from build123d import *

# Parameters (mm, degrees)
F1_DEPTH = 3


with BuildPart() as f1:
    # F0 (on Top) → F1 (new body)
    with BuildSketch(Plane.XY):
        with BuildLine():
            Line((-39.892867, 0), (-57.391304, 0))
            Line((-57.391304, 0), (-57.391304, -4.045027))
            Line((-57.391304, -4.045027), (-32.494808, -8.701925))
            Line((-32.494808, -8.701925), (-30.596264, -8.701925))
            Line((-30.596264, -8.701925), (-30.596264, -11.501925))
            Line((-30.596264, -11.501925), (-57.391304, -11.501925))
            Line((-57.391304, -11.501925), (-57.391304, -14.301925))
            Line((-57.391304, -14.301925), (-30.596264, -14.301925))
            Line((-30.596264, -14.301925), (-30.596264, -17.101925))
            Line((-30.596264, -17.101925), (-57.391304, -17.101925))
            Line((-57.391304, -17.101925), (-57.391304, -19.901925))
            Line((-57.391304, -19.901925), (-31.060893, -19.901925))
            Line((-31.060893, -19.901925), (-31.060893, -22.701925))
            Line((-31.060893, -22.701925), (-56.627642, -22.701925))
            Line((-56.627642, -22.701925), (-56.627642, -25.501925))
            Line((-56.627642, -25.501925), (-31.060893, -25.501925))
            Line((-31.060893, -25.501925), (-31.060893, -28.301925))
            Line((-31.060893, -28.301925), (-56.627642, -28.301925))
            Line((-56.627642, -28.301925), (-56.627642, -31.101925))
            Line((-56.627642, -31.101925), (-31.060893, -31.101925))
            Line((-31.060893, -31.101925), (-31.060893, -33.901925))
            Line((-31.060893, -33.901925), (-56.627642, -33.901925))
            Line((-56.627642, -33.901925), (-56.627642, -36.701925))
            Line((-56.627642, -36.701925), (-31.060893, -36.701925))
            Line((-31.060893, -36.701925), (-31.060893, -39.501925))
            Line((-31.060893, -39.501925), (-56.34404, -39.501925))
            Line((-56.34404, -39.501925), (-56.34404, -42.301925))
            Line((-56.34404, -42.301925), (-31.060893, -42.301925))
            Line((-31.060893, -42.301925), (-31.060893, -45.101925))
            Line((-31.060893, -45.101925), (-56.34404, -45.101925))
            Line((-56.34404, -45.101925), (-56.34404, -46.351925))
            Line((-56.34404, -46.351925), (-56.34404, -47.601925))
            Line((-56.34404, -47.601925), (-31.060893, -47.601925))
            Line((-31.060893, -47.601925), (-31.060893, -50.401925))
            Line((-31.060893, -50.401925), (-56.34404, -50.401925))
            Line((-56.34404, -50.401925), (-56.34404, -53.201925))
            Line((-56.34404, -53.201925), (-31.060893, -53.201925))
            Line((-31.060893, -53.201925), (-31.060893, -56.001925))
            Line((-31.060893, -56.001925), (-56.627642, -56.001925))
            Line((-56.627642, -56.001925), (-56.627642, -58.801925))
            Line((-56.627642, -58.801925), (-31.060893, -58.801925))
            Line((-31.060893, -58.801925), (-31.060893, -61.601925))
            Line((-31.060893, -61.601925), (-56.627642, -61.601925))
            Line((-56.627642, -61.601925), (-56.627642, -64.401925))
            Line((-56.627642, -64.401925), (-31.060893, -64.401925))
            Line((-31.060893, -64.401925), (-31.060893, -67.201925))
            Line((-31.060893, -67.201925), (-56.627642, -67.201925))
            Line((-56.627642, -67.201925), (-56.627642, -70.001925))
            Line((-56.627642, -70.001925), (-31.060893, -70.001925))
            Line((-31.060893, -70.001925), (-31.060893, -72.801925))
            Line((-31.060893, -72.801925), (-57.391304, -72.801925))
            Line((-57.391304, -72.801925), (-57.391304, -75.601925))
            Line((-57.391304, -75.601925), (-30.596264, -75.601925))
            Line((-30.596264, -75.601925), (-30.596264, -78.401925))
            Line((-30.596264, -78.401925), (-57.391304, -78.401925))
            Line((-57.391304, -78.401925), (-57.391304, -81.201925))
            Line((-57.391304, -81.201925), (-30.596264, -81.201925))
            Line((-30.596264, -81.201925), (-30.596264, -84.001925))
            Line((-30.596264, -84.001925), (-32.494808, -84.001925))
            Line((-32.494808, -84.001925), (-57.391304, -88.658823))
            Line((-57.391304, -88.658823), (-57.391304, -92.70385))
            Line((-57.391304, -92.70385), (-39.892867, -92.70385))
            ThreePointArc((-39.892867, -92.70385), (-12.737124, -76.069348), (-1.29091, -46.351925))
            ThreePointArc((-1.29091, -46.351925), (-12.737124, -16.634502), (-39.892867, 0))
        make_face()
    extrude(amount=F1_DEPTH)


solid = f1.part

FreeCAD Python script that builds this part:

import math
import FreeCAD as App
import Part
import Sketcher
from FreeCAD import Vector

doc = App.newDocument("Part")
body = doc.addObject("PartDesign::Body", "Body")

# Sketch on XY plane
sketch1 = body.newObject("Sketcher::SketchObject", "Sketch")
sketch1.AttachmentSupport = (doc.getObject("XY_Plane"), [""])
sketch1.MapMode = "FlatFace"
sketch1.addGeometry([
    Part.LineSegment(Vector(-39.892867, 0, 0), Vector(-57.391304, 0, 0)),  # 0
    Part.LineSegment(Vector(-57.391304, 0, 0), Vector(-57.391304, -4.045027, 0)),  # 1
    Part.LineSegment(Vector(-57.391304, -4.045027, 0), Vector(-32.494808, -8.701925, 0)),  # 2
    Part.LineSegment(Vector(-32.494808, -8.701925, 0), Vector(-30.596264, -8.701925, 0)),  # 3
    Part.LineSegment(Vector(-30.596264, -8.701925, 0), Vector(-30.596264, -11.501925, 0)),  # 4
    Part.LineSegment(Vector(-30.596264, -11.501925, 0), Vector(-57.391304, -11.501925, 0)),  # 5
    Part.LineSegment(Vector(-57.391304, -11.501925, 0), Vector(-57.391304, -14.301925, 0)),  # 6
    Part.LineSegment(Vector(-57.391304, -14.301925, 0), Vector(-30.596264, -14.301925, 0)),  # 7
    Part.LineSegment(Vector(-30.596264, -14.301925, 0), Vector(-30.596264, -17.101925, 0)),  # 8
    Part.LineSegment(Vector(-30.596264, -17.101925, 0), Vector(-57.391304, -17.101925, 0)),  # 9
    Part.LineSegment(Vector(-57.391304, -17.101925, 0), Vector(-57.391304, -19.901925, 0)),  # 10
    Part.LineSegment(Vector(-57.391304, -19.901925, 0), Vector(-31.060893, -19.901925, 0)),  # 11
    Part.LineSegment(Vector(-31.060893, -19.901925, 0), Vector(-31.060893, -22.701925, 0)),  # 12
    Part.LineSegment(Vector(-31.060893, -22.701925, 0), Vector(-56.627642, -22.701925, 0)),  # 13
    Part.LineSegment(Vector(-56.627642, -22.701925, 0), Vector(-56.627642, -25.501925, 0)),  # 14
    Part.LineSegment(Vector(-56.627642, -25.501925, 0), Vector(-31.060893, -25.501925, 0)),  # 15
    Part.LineSegment(Vector(-31.060893, -25.501925, 0), Vector(-31.060893, -28.301925, 0)),  # 16
    Part.LineSegment(Vector(-31.060893, -28.301925, 0), Vector(-56.627642, -28.301925, 0)),  # 17
    Part.LineSegment(Vector(-56.627642, -28.301925, 0), Vector(-56.627642, -31.101925, 0)),  # 18
    Part.LineSegment(Vector(-56.627642, -31.101925, 0), Vector(-31.060893, -31.101925, 0)),  # 19
    Part.LineSegment(Vector(-31.060893, -31.101925, 0), Vector(-31.060893, -33.901925, 0)),  # 20
    Part.LineSegment(Vector(-31.060893, -33.901925, 0), Vector(-56.627642, -33.901925, 0)),  # 21
    Part.LineSegment(Vector(-56.627642, -33.901925, 0), Vector(-56.627642, -36.701925, 0)),  # 22
    Part.LineSegment(Vector(-56.627642, -36.701925, 0), Vector(-31.060893, -36.701925, 0)),  # 23
    Part.LineSegment(Vector(-31.060893, -36.701925, 0), Vector(-31.060893, -39.501925, 0)),  # 24
    Part.LineSegment(Vector(-31.060893, -39.501925, 0), Vector(-56.34404, -39.501925, 0)),  # 25
    Part.LineSegment(Vector(-56.34404, -39.501925, 0), Vector(-56.34404, -42.301925, 0)),  # 26
    Part.LineSegment(Vector(-56.34404, -42.301925, 0), Vector(-31.060893, -42.301925, 0)),  # 27
    Part.LineSegment(Vector(-31.060893, -42.301925, 0), Vector(-31.060893, -45.101925, 0)),  # 28
    Part.LineSegment(Vector(-31.060893, -45.101925, 0), Vector(-56.34404, -45.101925, 0)),  # 29
    Part.LineSegment(Vector(-56.34404, -45.101925, 0), Vector(-56.34404, -47.601925, 0)),  # 30
    Part.LineSegment(Vector(-56.34404, -47.601925, 0), Vector(-31.060893, -47.601925, 0)),  # 31
    Part.LineSegment(Vector(-31.060893, -47.601925, 0), Vector(-31.060893, -50.401925, 0)),  # 32
    Part.LineSegment(Vector(-31.060893, -50.401925, 0), Vector(-56.34404, -50.401925, 0)),  # 33
    Part.LineSegment(Vector(-56.34404, -50.401925, 0), Vector(-56.34404, -53.201925, 0)),  # 34
    Part.LineSegment(Vector(-56.34404, -53.201925, 0), Vector(-31.060893, -53.201925, 0)),  # 35
    Part.LineSegment(Vector(-31.060893, -53.201925, 0), Vector(-31.060893, -56.001925, 0)),  # 36
    Part.LineSegment(Vector(-31.060893, -56.001925, 0), Vector(-56.627642, -56.001925, 0)),  # 37
    Part.LineSegment(Vector(-56.627642, -56.001925, 0), Vector(-56.627642, -58.801925, 0)),  # 38
    Part.LineSegment(Vector(-56.627642, -58.801925, 0), Vector(-31.060893, -58.801925, 0)),  # 39
    Part.LineSegment(Vector(-31.060893, -58.801925, 0), Vector(-31.060893, -61.601925, 0)),  # 40
    Part.LineSegment(Vector(-31.060893, -61.601925, 0), Vector(-56.627642, -61.601925, 0)),  # 41
    Part.LineSegment(Vector(-56.627642, -61.601925, 0), Vector(-56.627642, -64.401925, 0)),  # 42
    Part.LineSegment(Vector(-56.627642, -64.401925, 0), Vector(-31.060893, -64.401925, 0)),  # 43
    Part.LineSegment(Vector(-31.060893, -64.401925, 0), Vector(-31.060893, -67.201925, 0)),  # 44
    Part.LineSegment(Vector(-31.060893, -67.201925, 0), Vector(-56.627642, -67.201925, 0)),  # 45
    Part.LineSegment(Vector(-56.627642, -67.201925, 0), Vector(-56.627642, -70.001925, 0)),  # 46
    Part.LineSegment(Vector(-56.627642, -70.001925, 0), Vector(-31.060893, -70.001925, 0)),  # 47
    Part.LineSegment(Vector(-31.060893, -70.001925, 0), Vector(-31.060893, -72.801925, 0)),  # 48
    Part.LineSegment(Vector(-31.060893, -72.801925, 0), Vector(-57.391304, -72.801925, 0)),  # 49
    Part.LineSegment(Vector(-57.391304, -72.801925, 0), Vector(-57.391304, -75.601925, 0)),  # 50
    Part.LineSegment(Vector(-57.391304, -75.601925, 0), Vector(-30.596264, -75.601925, 0)),  # 51
    Part.LineSegment(Vector(-30.596264, -75.601925, 0), Vector(-30.596264, -78.401925, 0)),  # 52
    Part.LineSegment(Vector(-30.596264, -78.401925, 0), Vector(-57.391304, -78.401925, 0)),  # 53
    Part.LineSegment(Vector(-57.391304, -78.401925, 0), Vector(-57.391304, -81.201925, 0)),  # 54
    Part.LineSegment(Vector(-57.391304, -81.201925, 0), Vector(-30.596264, -81.201925, 0)),  # 55
    Part.LineSegment(Vector(-30.596264, -81.201925, 0), Vector(-30.596264, -84.001925, 0)),  # 56
    Part.LineSegment(Vector(-30.596264, -84.001925, 0), Vector(-32.494808, -84.001925, 0)),  # 57
    Part.LineSegment(Vector(-32.494808, -84.001925, 0), Vector(-57.391304, -88.658823, 0)),  # 58
    Part.LineSegment(Vector(-57.391304, -88.658823, 0), Vector(-57.391304, -92.70385, 0)),  # 59
    Part.LineSegment(Vector(-57.391304, -92.70385, 0), Vector(-39.892867, -92.70385, 0)),  # 60
    Part.ArcOfCircle(Part.Circle(Vector(-50.855553, -44.32426, 0), Vector(0, 0, 1), 49.606101), math.radians(-77.232536), math.radians(-2.342636)),  # 61
    Part.ArcOfCircle(Part.Circle(Vector(-50.855553, -48.37959, 0), Vector(0, 0, 1), 49.606101), math.radians(2.342636), math.radians(77.232536)),  # 62
], False)
sketch1.addConstraint([
    Sketcher.Constraint("Coincident", 0, 2, 1, 1),
    Sketcher.Constraint("Coincident", 1, 2, 2, 1),
    Sketcher.Constraint("Coincident", 2, 2, 3, 1),
    Sketcher.Constraint("Coincident", 3, 2, 4, 1),
    Sketcher.Constraint("Coincident", 4, 2, 5, 1),
    Sketcher.Constraint("Coincident", 5, 2, 6, 1),
    Sketcher.Constraint("Coincident", 6, 2, 7, 1),
    Sketcher.Constraint("Coincident", 7, 2, 8, 1),
    Sketcher.Constraint("Coincident", 8, 2, 9, 1),
    Sketcher.Constraint("Coincident", 9, 2, 10, 1),
    Sketcher.Constraint("Coincident", 10, 2, 11, 1),
    Sketcher.Constraint("Coincident", 11, 2, 12, 1),
    Sketcher.Constraint("Coincident", 12, 2, 13, 1),
    Sketcher.Constraint("Coincident", 13, 2, 14, 1),
    Sketcher.Constraint("Coincident", 14, 2, 15, 1),
    Sketcher.Constraint("Coincident", 15, 2, 16, 1),
    Sketcher.Constraint("Coincident", 16, 2, 17, 1),
    Sketcher.Constraint("Coincident", 17, 2, 18, 1),
    Sketcher.Constraint("Coincident", 18, 2, 19, 1),
    Sketcher.Constraint("Coincident", 19, 2, 20, 1),
    Sketcher.Constraint("Coincident", 20, 2, 21, 1),
    Sketcher.Constraint("Coincident", 21, 2, 22, 1),
    Sketcher.Constraint("Coincident", 22, 2, 23, 1),
    Sketcher.Constraint("Coincident", 23, 2, 24, 1),
    Sketcher.Constraint("Coincident", 24, 2, 25, 1),
    Sketcher.Constraint("Coincident", 25, 2, 26, 1),
    Sketcher.Constraint("Coincident", 26, 2, 27, 1),
    Sketcher.Constraint("Coincident", 27, 2, 28, 1),
    Sketcher.Constraint("Coincident", 28, 2, 29, 1),
    Sketcher.Constraint("Coincident", 29, 2, 30, 1),
    Sketcher.Constraint("Coincident", 30, 2, 31, 1),
    Sketcher.Constraint("Coincident", 31, 2, 32, 1),
    Sketcher.Constraint("Coincident", 32, 2, 33, 1),
    Sketcher.Constraint("Coincident", 33, 2, 34, 1),
    Sketcher.Constraint("Coincident", 34, 2, 35, 1),
    Sketcher.Constraint("Coincident", 35, 2, 36, 1),
    Sketcher.Constraint("Coincident", 36, 2, 37, 1),
    Sketcher.Constraint("Coincident", 37, 2, 38, 1),
    Sketcher.Constraint("Coincident", 38, 2, 39, 1),
    Sketcher.Constraint("Coincident", 39, 2, 40, 1),
    Sketcher.Constraint("Coincident", 40, 2, 41, 1),
    Sketcher.Constraint("Coincident", 41, 2, 42, 1),
    Sketcher.Constraint("Coincident", 42, 2, 43, 1),
    Sketcher.Constraint("Coincident", 43, 2, 44, 1),
    Sketcher.Constraint("Coincident", 44, 2, 45, 1),
    Sketcher.Constraint("Coincident", 45, 2, 46, 1),
    Sketcher.Constraint("Coincident", 46, 2, 47, 1),
    Sketcher.Constraint("Coincident", 47, 2, 48, 1),
    Sketcher.Constraint("Coincident", 48, 2, 49, 1),
    Sketcher.Constraint("Coincident", 49, 2, 50, 1),
    Sketcher.Constraint("Coincident", 50, 2, 51, 1),
    Sketcher.Constraint("Coincident", 51, 2, 52, 1),
    Sketcher.Constraint("Coincident", 52, 2, 53, 1),
    Sketcher.Constraint("Coincident", 53, 2, 54, 1),
    Sketcher.Constraint("Coincident", 54, 2, 55, 1),
    Sketcher.Constraint("Coincident", 55, 2, 56, 1),
    Sketcher.Constraint("Coincident", 56, 2, 57, 1),
    Sketcher.Constraint("Coincident", 57, 2, 58, 1),
    Sketcher.Constraint("Coincident", 58, 2, 59, 1),
    Sketcher.Constraint("Coincident", 59, 2, 60, 1),
    Sketcher.Constraint("Coincident", 60, 2, 61, 1),
    Sketcher.Constraint("Coincident", 61, 2, 62, 1),
    Sketcher.Constraint("Coincident", 62, 2, 0, 1),
    Sketcher.Constraint("Horizontal", 0),
    Sketcher.Constraint("Vertical", 1),
    Sketcher.Constraint("Horizontal", 3),
    Sketcher.Constraint("Vertical", 4),
    Sketcher.Constraint("Horizontal", 5),
    Sketcher.Constraint("Vertical", 6),
    Sketcher.Constraint("Horizontal", 7),
    Sketcher.Constraint("Vertical", 8),
    Sketcher.Constraint("Horizontal", 9),
    Sketcher.Constraint("Vertical", 10),
    Sketcher.Constraint("Horizontal", 11),
    Sketcher.Constraint("Vertical", 12),
    Sketcher.Constraint("Horizontal", 13),
    Sketcher.Constraint("Vertical", 14),
    Sketcher.Constraint("Horizontal", 15),
    Sketcher.Constraint("Vertical", 16),
    Sketcher.Constraint("Horizontal", 17),
    Sketcher.Constraint("Vertical", 18),
    Sketcher.Constraint("Horizontal", 19),
    Sketcher.Constraint("Vertical", 20),
    Sketcher.Constraint("Horizontal", 21),
    Sketcher.Constraint("Vertical", 22),
    Sketcher.Constraint("Horizontal", 23),
    Sketcher.Constraint("Vertical", 24),
    Sketcher.Constraint("Horizontal", 25),
    Sketcher.Constraint("Vertical", 26),
    Sketcher.Constraint("Horizontal", 27),
    Sketcher.Constraint("Vertical", 28),
    Sketcher.Constraint("Horizontal", 29),
    Sketcher.Constraint("Vertical", 30),
    Sketcher.Constraint("Horizontal", 31),
    Sketcher.Constraint("Vertical", 32),
    Sketcher.Constraint("Horizontal", 33),
    Sketcher.Constraint("Vertical", 34),
    Sketcher.Constraint("Horizontal", 35),
    Sketcher.Constraint("Vertical", 36),
    Sketcher.Constraint("Horizontal", 37),
    Sketcher.Constraint("Vertical", 38),
    Sketcher.Constraint("Horizontal", 39),
    Sketcher.Constraint("Vertical", 40),
    Sketcher.Constraint("Horizontal", 41),
    Sketcher.Constraint("Vertical", 42),
    Sketcher.Constraint("Horizontal", 43),
    Sketcher.Constraint("Vertical", 44),
    Sketcher.Constraint("Horizontal", 45),
    Sketcher.Constraint("Vertical", 46),
    Sketcher.Constraint("Horizontal", 47),
    Sketcher.Constraint("Vertical", 48),
    Sketcher.Constraint("Horizontal", 49),
    Sketcher.Constraint("Vertical", 50),
    Sketcher.Constraint("Horizontal", 51),
    Sketcher.Constraint("Vertical", 52),
    Sketcher.Constraint("Horizontal", 53),
    Sketcher.Constraint("Vertical", 54),
    Sketcher.Constraint("Horizontal", 55),
    Sketcher.Constraint("Vertical", 56),
    Sketcher.Constraint("Horizontal", 57),
    Sketcher.Constraint("Vertical", 59),
    Sketcher.Constraint("Horizontal", 60),
    Sketcher.Constraint("Equal", 61, 62),
    Sketcher.Constraint("PointOnObject", 0, 2, -1),
    Sketcher.Constraint("Vertical", 61, 3, 62, 3),
    Sketcher.Constraint("Vertical", 1, 2, 5, 2),
    Sketcher.Constraint("Vertical", 4, 2, 7, 2),
    Sketcher.Constraint("Vertical", 6, 2, 9, 2),
    Sketcher.Constraint("Vertical", 12, 2, 15, 2),
    Sketcher.Constraint("Vertical", 14, 2, 17, 2),
    Sketcher.Constraint("Vertical", 16, 2, 19, 2),
    Sketcher.Constraint("Vertical", 18, 2, 21, 2),
    Sketcher.Constraint("Vertical", 20, 2, 23, 2),
    Sketcher.Constraint("Vertical", 24, 2, 27, 2),
    Sketcher.Constraint("Vertical", 26, 2, 29, 2),
    Sketcher.Constraint("Vertical", 28, 2, 31, 2),
    Sketcher.Constraint("Vertical", 30, 2, 33, 2),
    Sketcher.Constraint("Vertical", 32, 2, 35, 2),
    Sketcher.Constraint("Vertical", 22, 2, 37, 2),
    Sketcher.Constraint("Vertical", 36, 2, 39, 2),
    Sketcher.Constraint("Vertical", 38, 2, 41, 2),
    Sketcher.Constraint("Vertical", 40, 2, 43, 2),
    Sketcher.Constraint("Vertical", 42, 2, 45, 2),
    Sketcher.Constraint("Vertical", 44, 2, 47, 2),
    Sketcher.Constraint("Vertical", 10, 2, 49, 2),
    Sketcher.Constraint("Vertical", 8, 2, 51, 2),
    Sketcher.Constraint("Vertical", 50, 2, 53, 2),
    Sketcher.Constraint("Vertical", 52, 2, 55, 2),
    Sketcher.Constraint("Vertical", 2, 2, 57, 2),
    Sketcher.Constraint("Vertical", 54, 2, 58, 2),
    Sketcher.Constraint("Vertical", 60, 2, 62, 2),
    Sketcher.Constraint("Equal", 4, 6),
    Sketcher.Constraint("Equal", 6, 8),
    Sketcher.Constraint("Equal", 8, 10),
    Sketcher.Constraint("Equal", 10, 12),
    Sketcher.Constraint("Equal", 12, 14),
    Sketcher.Constraint("Equal", 14, 16),
    Sketcher.Constraint("Equal", 16, 18),
    Sketcher.Constraint("Equal", 18, 20),
    Sketcher.Constraint("Equal", 20, 22),
    Sketcher.Constraint("Equal", 22, 24),
    Sketcher.Constraint("Equal", 24, 26),
    Sketcher.Constraint("Equal", 26, 28),
    Sketcher.Constraint("Equal", 28, 32),
    Sketcher.Constraint("Equal", 32, 34),
    Sketcher.Constraint("Equal", 34, 36),
    Sketcher.Constraint("Equal", 36, 38),
    Sketcher.Constraint("Equal", 38, 40),
    Sketcher.Constraint("Equal", 40, 42),
    Sketcher.Constraint("Equal", 42, 44),
    Sketcher.Constraint("Equal", 44, 46),
    Sketcher.Constraint("Equal", 46, 48),
    Sketcher.Constraint("Equal", 48, 50),
    Sketcher.Constraint("Equal", 50, 52),
    Sketcher.Constraint("Equal", 52, 54),
    Sketcher.Constraint("Equal", 54, 56),
    Sketcher.Constraint("Equal", 1, 59),
    Sketcher.Constraint("Equal", 2, 58),
    Sketcher.Constraint("DistanceY", 4, 2, 4, 1, 2.8),
    Sketcher.Constraint("DistanceY", 30, 2, 30, 1, 2.5),
    Sketcher.Constraint("Radius", 61, 49.606101),
    Sketcher.Constraint("DistanceX", 5, 2, 5, 1, 26.79504),
    Sketcher.Constraint("DistanceX", 11, 1, 11, 2, 26.330411),
    Sketcher.Constraint("DistanceX", 13, 2, 13, 1, 25.566749),
    Sketcher.Constraint("Distance", 2, 25.328289),
    Sketcher.Constraint("DistanceX", 0, 2, 0, 1, 17.498437),
    Sketcher.Constraint("DistanceX", 3, 1, 3, 2, 1.898544),
    Sketcher.Constraint("DistanceX", 25, 2, 25, 1, 25.283147),
    Sketcher.Constraint("DistanceY", 1, 2, 1, 1, 4.045027),
    Sketcher.Constraint("DistanceY", 61, 3, -1, 1, 44.32426),
    Sketcher.Constraint("DistanceX", 25, 2, -1, 1, 56.34404),
])
pad1 = body.newObject("PartDesign::Pad", "Pad")
pad1.Profile = sketch1
pad1.Length = 3

doc.recompute()
